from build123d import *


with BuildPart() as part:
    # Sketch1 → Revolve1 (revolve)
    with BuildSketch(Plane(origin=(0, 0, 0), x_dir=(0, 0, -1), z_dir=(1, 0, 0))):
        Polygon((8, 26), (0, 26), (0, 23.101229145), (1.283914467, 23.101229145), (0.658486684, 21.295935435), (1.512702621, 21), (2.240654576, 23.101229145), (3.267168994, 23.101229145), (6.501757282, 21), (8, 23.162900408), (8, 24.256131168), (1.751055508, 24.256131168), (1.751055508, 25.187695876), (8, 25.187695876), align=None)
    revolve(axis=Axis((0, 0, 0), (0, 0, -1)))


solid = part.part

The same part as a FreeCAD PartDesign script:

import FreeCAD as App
import Part
import Sketcher

V = App.Vector

doc = App.newDocument("Part")
params = doc.addObject("Spreadsheet::Sheet", "Params")
for row, (alias, value) in enumerate([
    ("sketch1_height", "8 mm"),
    ("revolution_angle", "360 deg"),
], start=1):
    params.set(f"A{row}", alias)
    params.set(f"B{row}", "=" + value)
    params.setAlias(f"B{row}", alias)

body = doc.addObject("PartDesign::Body", "Body")

# Sketch on YZ plane
sketch1 = body.newObject("Sketcher::SketchObject", "Sketch")
sketch1.AttachmentSupport = (doc.getObject("YZ_Plane"), [""])
sketch1.MapMode = "FlatFace"
sketch1.addGeometry([
    Part.LineSegment(V(26, -8, 0), V(26, 0, 0)),  # 0
    Part.LineSegment(V(26, 0, 0), V(23.1, 0, 0)),  # 1
    Part.LineSegment(V(23.1, 0, 0), V(23.1, -1.3, 0)),  # 2
    Part.LineSegment(V(23.1, -1.3, 0), V(21.3, -0.7, 0)),  # 3
    Part.LineSegment(V(21.3, -0.7, 0), V(21, -1.5, 0)),  # 4
    Part.LineSegment(V(21, -1.5, 0), V(23.1, -2.2, 0)),  # 5
    Part.LineSegment(V(23.1, -2.2, 0), V(23.1, -3.3, 0)),  # 6
    Part.LineSegment(V(23.1, -3.3, 0), V(21, -6.5, 0)),  # 7
    Part.LineSegment(V(21, -6.5, 0), V(23.2, -8, 0)),  # 8
    Part.LineSegment(V(23.2, -8, 0), V(24.3, -8, 0)),  # 9
    Part.LineSegment(V(24.3, -8, 0), V(24.3, -1.8, 0)),  # 10
    Part.LineSegment(V(24.3, -1.8, 0), V(25.2, -1.8, 0)),  # 11
    Part.LineSegment(V(25.2, -1.8, 0), V(25.2, -8, 0)),  # 12
    Part.LineSegment(V(25.2, -8, 0), V(26, -8, 0)),  # 13
], False)
sketch1.addConstraint([
    Sketcher.Constraint("Coincident", 0, 2, 1, 1),
    Sketcher.Constraint("Coincident", 1, 2, 2, 1),
    Sketcher.Constraint("Coincident", 2, 2, 3, 1),
    Sketcher.Constraint("Coincident", 3, 2, 4, 1),
    Sketcher.Constraint("Coincident", 4, 2, 5, 1),
    Sketcher.Constraint("Coincident", 5, 2, 6, 1),
    Sketcher.Constraint("Coincident", 6, 2, 7, 1),
    Sketcher.Constraint("Coincident", 7, 2, 8, 1),
    Sketcher.Constraint("Coincident", 8, 2, 9, 1),
    Sketcher.Constraint("Coincident", 9, 2, 10, 1),
    Sketcher.Constraint("Coincident", 10, 2, 11, 1),
    Sketcher.Constraint("Coincident", 11, 2, 12, 1),
    Sketcher.Constraint("Coincident", 12, 2, 13, 1),
    Sketcher.Constraint("Coincident", 13, 2, 0, 1),
    Sketcher.Constraint("Vertical", 0),
    Sketcher.Constraint("Horizontal", 1),
    Sketcher.Constraint("Vertical", 2),
    Sketcher.Constraint("Vertical", 6),
    Sketcher.Constraint("Horizontal", 9),
    Sketcher.Constraint("Vertical", 10),
    Sketcher.Constraint("Horizontal", 11),
    Sketcher.Constraint("Vertical", 12),
    Sketcher.Constraint("Horizontal", 13),
    Sketcher.Constraint("PointOnObject", 0, 2, -1),
    Sketcher.Constraint("Perpendicular", 3, 4),
    Sketcher.Constraint("Perpendicular", 4, 5),
    Sketcher.Constraint("Horizontal", 9, 2, 12, 2),
    Sketcher.Constraint("Vertical", 2, 2, 5, 2),
    Sketcher.Constraint("Vertical", 4, 2, 7, 2),
    Sketcher.Constraint("DistanceY", 0, 1, 0, 2, 8.0),
    Sketcher.Constraint("DistanceX", -1, 1, 0, 2, 26.0),
    Sketcher.Constraint("DistanceX", -1, 1, 4, 2, 21.0),
    Sketcher.Constraint("DistanceX", 1, 2, 1, 1, 2.898771),
    Sketcher.Constraint("DistanceX", 9, 1, 9, 2, 1.093231),
    Sketcher.Constraint("DistanceX", -1, 1, 8, 2, 23.1629),
    Sketcher.Constraint("DistanceY", 5, 2, 10, 2, 0.489599),
    Sketcher.Constraint("Distance", 3, 1.910562),
    Sketcher.Constraint("DistanceX", 11, 1, 11, 2, 0.931565),
    Sketcher.Constraint("DistanceY", 2, 2, 2, 1, 1.283914),
    Sketcher.Constraint("DistanceY", 6, 2, 6, 1, 1.026514),
    Sketcher.Constraint("DistanceY", 10, 1, 10, 2, 6.248944),
    Sketcher.Constraint("DistanceY", 7, 2, 6, 2, 3.234588),
])
sketch1.setExpression("Constraints[29]", "Params.sketch1_height")
revolution = body.newObject("PartDesign::Revolution", "Revolution")
revolution.Profile = sketch1
revolution.ReferenceAxis = (sketch1, ["V_Axis"])
revolution.setExpression("Angle", "Params.revolution_angle")

doc.recompute()
